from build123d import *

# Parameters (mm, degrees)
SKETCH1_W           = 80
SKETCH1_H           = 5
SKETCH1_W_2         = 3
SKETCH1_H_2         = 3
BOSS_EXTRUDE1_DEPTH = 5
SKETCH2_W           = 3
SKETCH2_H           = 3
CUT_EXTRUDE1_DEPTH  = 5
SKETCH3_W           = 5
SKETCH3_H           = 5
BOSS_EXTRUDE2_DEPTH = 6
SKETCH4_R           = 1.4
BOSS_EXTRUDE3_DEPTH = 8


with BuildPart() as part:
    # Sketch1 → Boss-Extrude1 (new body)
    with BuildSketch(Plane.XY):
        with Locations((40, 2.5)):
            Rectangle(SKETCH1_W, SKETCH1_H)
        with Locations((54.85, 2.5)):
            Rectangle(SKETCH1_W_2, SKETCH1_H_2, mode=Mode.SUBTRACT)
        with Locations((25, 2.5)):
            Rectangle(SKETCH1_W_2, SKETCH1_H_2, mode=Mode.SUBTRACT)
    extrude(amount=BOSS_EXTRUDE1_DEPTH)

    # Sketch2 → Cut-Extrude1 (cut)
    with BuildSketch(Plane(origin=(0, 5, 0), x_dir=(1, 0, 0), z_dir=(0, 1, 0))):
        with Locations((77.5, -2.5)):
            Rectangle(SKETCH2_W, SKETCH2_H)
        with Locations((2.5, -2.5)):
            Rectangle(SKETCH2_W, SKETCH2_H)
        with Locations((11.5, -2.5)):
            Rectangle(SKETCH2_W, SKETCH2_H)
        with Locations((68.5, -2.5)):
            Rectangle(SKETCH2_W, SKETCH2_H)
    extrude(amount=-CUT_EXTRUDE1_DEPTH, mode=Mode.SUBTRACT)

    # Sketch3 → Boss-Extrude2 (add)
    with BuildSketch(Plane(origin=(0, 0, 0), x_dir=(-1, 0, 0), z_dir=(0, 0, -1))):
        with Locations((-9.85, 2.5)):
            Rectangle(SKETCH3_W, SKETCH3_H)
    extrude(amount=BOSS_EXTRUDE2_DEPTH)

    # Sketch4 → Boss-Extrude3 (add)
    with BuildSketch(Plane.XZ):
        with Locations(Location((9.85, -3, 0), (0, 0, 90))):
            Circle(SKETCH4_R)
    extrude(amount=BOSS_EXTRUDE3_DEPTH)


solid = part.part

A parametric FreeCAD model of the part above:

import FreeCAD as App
import Part
import Sketcher
from FreeCAD import Vector


def add_polygon(sketch, points):
    """Adds a closed chain of lines whose ends are joined by coincident constraints."""
    first, n = sketch.GeometryCount, len(points)
    for a, b in zip(points, points[1:] + points[:1]):
        sketch.addGeometry(Part.LineSegment(App.Vector(*a, 0), App.Vector(*b, 0)), False)
    for i in range(n):
        sketch.addConstraint(Sketcher.Constraint("Coincident", first + i, 2, first + (i + 1) % n, 1))

doc = App.newDocument("Part")
body = doc.addObject("PartDesign::Body", "Body")

# Sketch on XY plane
sketch1 = body.newObject("Sketcher::SketchObject", "Sketch")
sketch1.AttachmentSupport = (doc.getObject("XY_Plane"), [""])
sketch1.MapMode = "FlatFace"
add_polygon(sketch1, [(0, 5), (0, 0), (80, 0), (80, 5)])  # lines 0-3
add_polygon(sketch1, [(26.5, 1), (23.5, 1), (23.5, 4), (26.5, 4)])  # lines 4-7
add_polygon(sketch1, [(56.4, 1), (53.4, 1), (53.4, 4), (56.4, 4)])  # lines 8-11
sketch1.addConstraint([
    Sketcher.Constraint("Vertical", 0),
    Sketcher.Constraint("Horizontal", 1),
    Sketcher.Constraint("Vertical", 2),
    Sketcher.Constraint("Horizontal", 3),
    Sketcher.Constraint("Horizontal", 4),
    Sketcher.Constraint("Vertical", 5),
    Sketcher.Constraint("Horizontal", 6),
    Sketcher.Constraint("Vertical", 7),
    Sketcher.Constraint("Horizontal", 8),
    Sketcher.Constraint("Vertical", 9),
    Sketcher.Constraint("Horizontal", 10),
    Sketcher.Constraint("Vertical", 11),
    Sketcher.Constraint("Coincident", 0, 2, -1, 1),
    Sketcher.Constraint("Horizontal", 7, 2, 8, 2),
    Sketcher.Constraint("Horizontal", 6, 2, 9, 2),
    Sketcher.Constraint("Equal", 6, 8),
    Sketcher.Constraint("Equal", 10, 5),
    Sketcher.Constraint("DistanceX", 1, 1, 1, 2, 80.0),
    Sketcher.Constraint("DistanceX", 4, 2, 4, 1, 3.0),
    Sketcher.Constraint("DistanceY", 0, 2, 0, 1, 5.0),
    Sketcher.Constraint("DistanceY", -1, 1, 4, 2, 1.0),
    Sketcher.Constraint("DistanceX", -1, 1, 4, 2, 23.5),
    Sketcher.Constraint("DistanceX", -1, 1, 8, 2, 53.35),
])
pad1 = body.newObject("PartDesign::Pad", "Pad")
pad1.Profile = sketch1
pad1.Length = 5

# Sketch on XZ plane
sketch2 = body.newObject("Sketcher::SketchObject", "Sketch001")
sketch2.AttachmentSupport = (doc.getObject("XZ_Plane"), [""])
sketch2.MapMode = "FlatFace"
sketch2.AttachmentOffset = App.Placement(Vector(0, 0, -5), App.Rotation())
add_polygon(sketch2, [(76, 1), (76, 4), (79, 4), (79, 1)])  # lines 0-3
add_polygon(sketch2, [(1, 1), (1, 4), (4, 4), (4, 1)])  # lines 4-7
add_polygon(sketch2, [(10, 1), (10, 4), (13, 4), (13, 1)])  # lines 8-11
add_polygon(sketch2, [(67, 1), (67, 4), (70, 4), (70, 1)])  # lines 12-15
sketch2.addConstraint([
    Sketcher.Constraint("Vertical", 0),
    Sketcher.Constraint("Horizontal", 1),
    Sketcher.Constraint("Vertical", 2),
    Sketcher.Constraint("Horizontal", 3),
    Sketcher.Constraint("Vertical", 4),
    Sketcher.Constraint("Horizontal", 5),
    Sketcher.Constraint("Vertical", 6),
    Sketcher.Constraint("Horizontal", 7),
    Sketcher.Constraint("Vertical", 8),
    Sketcher.Constraint("Horizontal", 9),
    Sketcher.Constraint("Vertical", 10),
    Sketcher.Constraint("Horizontal", 11),
    Sketcher.Constraint("Vertical", 12),
    Sketcher.Constraint("Horizontal", 13),
    Sketcher.Constraint("Vertical", 14),
    Sketcher.Constraint("Horizontal", 15),
    Sketcher.Constraint("Horizontal", 1, 2, 4, 2),
    Sketcher.Constraint("Horizontal", 3, 2, 6, 2),
    Sketcher.Constraint("Horizontal", 5, 2, 8, 2),
    Sketcher.Constraint("Horizontal", 7, 2, 10, 2),
    Sketcher.Constraint("Horizontal", 9, 2, 12, 2),
    Sketcher.Constraint("Horizontal", 11, 2, 14, 2),
    Sketcher.Constraint("Equal", 3, 5),
    Sketcher.Constraint("Equal", 7, 9),
    Sketcher.Constraint("Equal", 11, 13),
    Sketcher.Constraint("Equal", 15, 0),
    Sketcher.Constraint("DistanceX", 1, 1, 1, 2, 3.0),
    Sketcher.Constraint("DistanceX", -1, 1, 0, 2, 76.0),
    Sketcher.Constraint("DistanceY", -1, 1, 0, 2, 4.0),
    Sketcher.Constraint("DistanceX", -1, 1, 4, 2, 1.0),
    Sketcher.Constraint("DistanceX", -1, 1, 8, 2, 10.0),
    Sketcher.Constraint("DistanceX", -1, 1, 12, 2, 67.0),
])
pocket1 = body.newObject("PartDesign::Pocket", "Pocket")
pocket1.Profile = sketch2
pocket1.Length = 5
pocket1.Reversed = True

# Sketch on XY plane
sketch3 = body.newObject("Sketcher::SketchObject", "Sketch002")
sketch3.AttachmentSupport = (doc.getObject("XY_Plane"), [""])
sketch3.MapMode = "FlatFace"
add_polygon(sketch3, [(12, 5), (12, 0), (7, 0), (7, 5)])  # lines 0-3
sketch3.addConstraint([
    Sketcher.Constraint("Vertical", 0),
    Sketcher.Constraint("Horizontal", 1),
    Sketcher.Constraint("Vertical", 2),
    Sketcher.Constraint("Horizontal", 3),
    Sketcher.Constraint("PointOnObject", 0, 2, -1),
    Sketcher.Constraint("Equal", 3, 0),
    Sketcher.Constraint("DistanceX", 1, 2, 1, 1, 5.0),
    Sketcher.Constraint("DistanceX", -1, 1, 0, 2, 12.35),
])
pad2 = body.newObject("PartDesign::Pad", "Pad001")
pad2.Profile = sketch3
pad2.Length = 6
pad2.Reversed = True

# Sketch on XZ plane
sketch4 = body.newObject("Sketcher::SketchObject", "Sketch003")
sketch4.AttachmentSupport = (doc.getObject("XZ_Plane"), [""])
sketch4.MapMode = "FlatFace"
sketch4.addGeometry(Part.Circle(Vector(9.8, -3, 0), Vector(0, 0, 1), 1.4), False)
sketch4.addConstraint([
    Sketcher.Constraint("Diameter", 0, 2.8),
    Sketcher.Constraint("DistanceY", 0, 3, -1, 1, 3.0),
    Sketcher.Constraint("DistanceX", -1, 1, 0, 3, 9.85),
])
pad3 = body.newObject("PartDesign::Pad", "Pad002")
pad3.Profile = sketch4
pad3.Length = 8

doc.recompute()
